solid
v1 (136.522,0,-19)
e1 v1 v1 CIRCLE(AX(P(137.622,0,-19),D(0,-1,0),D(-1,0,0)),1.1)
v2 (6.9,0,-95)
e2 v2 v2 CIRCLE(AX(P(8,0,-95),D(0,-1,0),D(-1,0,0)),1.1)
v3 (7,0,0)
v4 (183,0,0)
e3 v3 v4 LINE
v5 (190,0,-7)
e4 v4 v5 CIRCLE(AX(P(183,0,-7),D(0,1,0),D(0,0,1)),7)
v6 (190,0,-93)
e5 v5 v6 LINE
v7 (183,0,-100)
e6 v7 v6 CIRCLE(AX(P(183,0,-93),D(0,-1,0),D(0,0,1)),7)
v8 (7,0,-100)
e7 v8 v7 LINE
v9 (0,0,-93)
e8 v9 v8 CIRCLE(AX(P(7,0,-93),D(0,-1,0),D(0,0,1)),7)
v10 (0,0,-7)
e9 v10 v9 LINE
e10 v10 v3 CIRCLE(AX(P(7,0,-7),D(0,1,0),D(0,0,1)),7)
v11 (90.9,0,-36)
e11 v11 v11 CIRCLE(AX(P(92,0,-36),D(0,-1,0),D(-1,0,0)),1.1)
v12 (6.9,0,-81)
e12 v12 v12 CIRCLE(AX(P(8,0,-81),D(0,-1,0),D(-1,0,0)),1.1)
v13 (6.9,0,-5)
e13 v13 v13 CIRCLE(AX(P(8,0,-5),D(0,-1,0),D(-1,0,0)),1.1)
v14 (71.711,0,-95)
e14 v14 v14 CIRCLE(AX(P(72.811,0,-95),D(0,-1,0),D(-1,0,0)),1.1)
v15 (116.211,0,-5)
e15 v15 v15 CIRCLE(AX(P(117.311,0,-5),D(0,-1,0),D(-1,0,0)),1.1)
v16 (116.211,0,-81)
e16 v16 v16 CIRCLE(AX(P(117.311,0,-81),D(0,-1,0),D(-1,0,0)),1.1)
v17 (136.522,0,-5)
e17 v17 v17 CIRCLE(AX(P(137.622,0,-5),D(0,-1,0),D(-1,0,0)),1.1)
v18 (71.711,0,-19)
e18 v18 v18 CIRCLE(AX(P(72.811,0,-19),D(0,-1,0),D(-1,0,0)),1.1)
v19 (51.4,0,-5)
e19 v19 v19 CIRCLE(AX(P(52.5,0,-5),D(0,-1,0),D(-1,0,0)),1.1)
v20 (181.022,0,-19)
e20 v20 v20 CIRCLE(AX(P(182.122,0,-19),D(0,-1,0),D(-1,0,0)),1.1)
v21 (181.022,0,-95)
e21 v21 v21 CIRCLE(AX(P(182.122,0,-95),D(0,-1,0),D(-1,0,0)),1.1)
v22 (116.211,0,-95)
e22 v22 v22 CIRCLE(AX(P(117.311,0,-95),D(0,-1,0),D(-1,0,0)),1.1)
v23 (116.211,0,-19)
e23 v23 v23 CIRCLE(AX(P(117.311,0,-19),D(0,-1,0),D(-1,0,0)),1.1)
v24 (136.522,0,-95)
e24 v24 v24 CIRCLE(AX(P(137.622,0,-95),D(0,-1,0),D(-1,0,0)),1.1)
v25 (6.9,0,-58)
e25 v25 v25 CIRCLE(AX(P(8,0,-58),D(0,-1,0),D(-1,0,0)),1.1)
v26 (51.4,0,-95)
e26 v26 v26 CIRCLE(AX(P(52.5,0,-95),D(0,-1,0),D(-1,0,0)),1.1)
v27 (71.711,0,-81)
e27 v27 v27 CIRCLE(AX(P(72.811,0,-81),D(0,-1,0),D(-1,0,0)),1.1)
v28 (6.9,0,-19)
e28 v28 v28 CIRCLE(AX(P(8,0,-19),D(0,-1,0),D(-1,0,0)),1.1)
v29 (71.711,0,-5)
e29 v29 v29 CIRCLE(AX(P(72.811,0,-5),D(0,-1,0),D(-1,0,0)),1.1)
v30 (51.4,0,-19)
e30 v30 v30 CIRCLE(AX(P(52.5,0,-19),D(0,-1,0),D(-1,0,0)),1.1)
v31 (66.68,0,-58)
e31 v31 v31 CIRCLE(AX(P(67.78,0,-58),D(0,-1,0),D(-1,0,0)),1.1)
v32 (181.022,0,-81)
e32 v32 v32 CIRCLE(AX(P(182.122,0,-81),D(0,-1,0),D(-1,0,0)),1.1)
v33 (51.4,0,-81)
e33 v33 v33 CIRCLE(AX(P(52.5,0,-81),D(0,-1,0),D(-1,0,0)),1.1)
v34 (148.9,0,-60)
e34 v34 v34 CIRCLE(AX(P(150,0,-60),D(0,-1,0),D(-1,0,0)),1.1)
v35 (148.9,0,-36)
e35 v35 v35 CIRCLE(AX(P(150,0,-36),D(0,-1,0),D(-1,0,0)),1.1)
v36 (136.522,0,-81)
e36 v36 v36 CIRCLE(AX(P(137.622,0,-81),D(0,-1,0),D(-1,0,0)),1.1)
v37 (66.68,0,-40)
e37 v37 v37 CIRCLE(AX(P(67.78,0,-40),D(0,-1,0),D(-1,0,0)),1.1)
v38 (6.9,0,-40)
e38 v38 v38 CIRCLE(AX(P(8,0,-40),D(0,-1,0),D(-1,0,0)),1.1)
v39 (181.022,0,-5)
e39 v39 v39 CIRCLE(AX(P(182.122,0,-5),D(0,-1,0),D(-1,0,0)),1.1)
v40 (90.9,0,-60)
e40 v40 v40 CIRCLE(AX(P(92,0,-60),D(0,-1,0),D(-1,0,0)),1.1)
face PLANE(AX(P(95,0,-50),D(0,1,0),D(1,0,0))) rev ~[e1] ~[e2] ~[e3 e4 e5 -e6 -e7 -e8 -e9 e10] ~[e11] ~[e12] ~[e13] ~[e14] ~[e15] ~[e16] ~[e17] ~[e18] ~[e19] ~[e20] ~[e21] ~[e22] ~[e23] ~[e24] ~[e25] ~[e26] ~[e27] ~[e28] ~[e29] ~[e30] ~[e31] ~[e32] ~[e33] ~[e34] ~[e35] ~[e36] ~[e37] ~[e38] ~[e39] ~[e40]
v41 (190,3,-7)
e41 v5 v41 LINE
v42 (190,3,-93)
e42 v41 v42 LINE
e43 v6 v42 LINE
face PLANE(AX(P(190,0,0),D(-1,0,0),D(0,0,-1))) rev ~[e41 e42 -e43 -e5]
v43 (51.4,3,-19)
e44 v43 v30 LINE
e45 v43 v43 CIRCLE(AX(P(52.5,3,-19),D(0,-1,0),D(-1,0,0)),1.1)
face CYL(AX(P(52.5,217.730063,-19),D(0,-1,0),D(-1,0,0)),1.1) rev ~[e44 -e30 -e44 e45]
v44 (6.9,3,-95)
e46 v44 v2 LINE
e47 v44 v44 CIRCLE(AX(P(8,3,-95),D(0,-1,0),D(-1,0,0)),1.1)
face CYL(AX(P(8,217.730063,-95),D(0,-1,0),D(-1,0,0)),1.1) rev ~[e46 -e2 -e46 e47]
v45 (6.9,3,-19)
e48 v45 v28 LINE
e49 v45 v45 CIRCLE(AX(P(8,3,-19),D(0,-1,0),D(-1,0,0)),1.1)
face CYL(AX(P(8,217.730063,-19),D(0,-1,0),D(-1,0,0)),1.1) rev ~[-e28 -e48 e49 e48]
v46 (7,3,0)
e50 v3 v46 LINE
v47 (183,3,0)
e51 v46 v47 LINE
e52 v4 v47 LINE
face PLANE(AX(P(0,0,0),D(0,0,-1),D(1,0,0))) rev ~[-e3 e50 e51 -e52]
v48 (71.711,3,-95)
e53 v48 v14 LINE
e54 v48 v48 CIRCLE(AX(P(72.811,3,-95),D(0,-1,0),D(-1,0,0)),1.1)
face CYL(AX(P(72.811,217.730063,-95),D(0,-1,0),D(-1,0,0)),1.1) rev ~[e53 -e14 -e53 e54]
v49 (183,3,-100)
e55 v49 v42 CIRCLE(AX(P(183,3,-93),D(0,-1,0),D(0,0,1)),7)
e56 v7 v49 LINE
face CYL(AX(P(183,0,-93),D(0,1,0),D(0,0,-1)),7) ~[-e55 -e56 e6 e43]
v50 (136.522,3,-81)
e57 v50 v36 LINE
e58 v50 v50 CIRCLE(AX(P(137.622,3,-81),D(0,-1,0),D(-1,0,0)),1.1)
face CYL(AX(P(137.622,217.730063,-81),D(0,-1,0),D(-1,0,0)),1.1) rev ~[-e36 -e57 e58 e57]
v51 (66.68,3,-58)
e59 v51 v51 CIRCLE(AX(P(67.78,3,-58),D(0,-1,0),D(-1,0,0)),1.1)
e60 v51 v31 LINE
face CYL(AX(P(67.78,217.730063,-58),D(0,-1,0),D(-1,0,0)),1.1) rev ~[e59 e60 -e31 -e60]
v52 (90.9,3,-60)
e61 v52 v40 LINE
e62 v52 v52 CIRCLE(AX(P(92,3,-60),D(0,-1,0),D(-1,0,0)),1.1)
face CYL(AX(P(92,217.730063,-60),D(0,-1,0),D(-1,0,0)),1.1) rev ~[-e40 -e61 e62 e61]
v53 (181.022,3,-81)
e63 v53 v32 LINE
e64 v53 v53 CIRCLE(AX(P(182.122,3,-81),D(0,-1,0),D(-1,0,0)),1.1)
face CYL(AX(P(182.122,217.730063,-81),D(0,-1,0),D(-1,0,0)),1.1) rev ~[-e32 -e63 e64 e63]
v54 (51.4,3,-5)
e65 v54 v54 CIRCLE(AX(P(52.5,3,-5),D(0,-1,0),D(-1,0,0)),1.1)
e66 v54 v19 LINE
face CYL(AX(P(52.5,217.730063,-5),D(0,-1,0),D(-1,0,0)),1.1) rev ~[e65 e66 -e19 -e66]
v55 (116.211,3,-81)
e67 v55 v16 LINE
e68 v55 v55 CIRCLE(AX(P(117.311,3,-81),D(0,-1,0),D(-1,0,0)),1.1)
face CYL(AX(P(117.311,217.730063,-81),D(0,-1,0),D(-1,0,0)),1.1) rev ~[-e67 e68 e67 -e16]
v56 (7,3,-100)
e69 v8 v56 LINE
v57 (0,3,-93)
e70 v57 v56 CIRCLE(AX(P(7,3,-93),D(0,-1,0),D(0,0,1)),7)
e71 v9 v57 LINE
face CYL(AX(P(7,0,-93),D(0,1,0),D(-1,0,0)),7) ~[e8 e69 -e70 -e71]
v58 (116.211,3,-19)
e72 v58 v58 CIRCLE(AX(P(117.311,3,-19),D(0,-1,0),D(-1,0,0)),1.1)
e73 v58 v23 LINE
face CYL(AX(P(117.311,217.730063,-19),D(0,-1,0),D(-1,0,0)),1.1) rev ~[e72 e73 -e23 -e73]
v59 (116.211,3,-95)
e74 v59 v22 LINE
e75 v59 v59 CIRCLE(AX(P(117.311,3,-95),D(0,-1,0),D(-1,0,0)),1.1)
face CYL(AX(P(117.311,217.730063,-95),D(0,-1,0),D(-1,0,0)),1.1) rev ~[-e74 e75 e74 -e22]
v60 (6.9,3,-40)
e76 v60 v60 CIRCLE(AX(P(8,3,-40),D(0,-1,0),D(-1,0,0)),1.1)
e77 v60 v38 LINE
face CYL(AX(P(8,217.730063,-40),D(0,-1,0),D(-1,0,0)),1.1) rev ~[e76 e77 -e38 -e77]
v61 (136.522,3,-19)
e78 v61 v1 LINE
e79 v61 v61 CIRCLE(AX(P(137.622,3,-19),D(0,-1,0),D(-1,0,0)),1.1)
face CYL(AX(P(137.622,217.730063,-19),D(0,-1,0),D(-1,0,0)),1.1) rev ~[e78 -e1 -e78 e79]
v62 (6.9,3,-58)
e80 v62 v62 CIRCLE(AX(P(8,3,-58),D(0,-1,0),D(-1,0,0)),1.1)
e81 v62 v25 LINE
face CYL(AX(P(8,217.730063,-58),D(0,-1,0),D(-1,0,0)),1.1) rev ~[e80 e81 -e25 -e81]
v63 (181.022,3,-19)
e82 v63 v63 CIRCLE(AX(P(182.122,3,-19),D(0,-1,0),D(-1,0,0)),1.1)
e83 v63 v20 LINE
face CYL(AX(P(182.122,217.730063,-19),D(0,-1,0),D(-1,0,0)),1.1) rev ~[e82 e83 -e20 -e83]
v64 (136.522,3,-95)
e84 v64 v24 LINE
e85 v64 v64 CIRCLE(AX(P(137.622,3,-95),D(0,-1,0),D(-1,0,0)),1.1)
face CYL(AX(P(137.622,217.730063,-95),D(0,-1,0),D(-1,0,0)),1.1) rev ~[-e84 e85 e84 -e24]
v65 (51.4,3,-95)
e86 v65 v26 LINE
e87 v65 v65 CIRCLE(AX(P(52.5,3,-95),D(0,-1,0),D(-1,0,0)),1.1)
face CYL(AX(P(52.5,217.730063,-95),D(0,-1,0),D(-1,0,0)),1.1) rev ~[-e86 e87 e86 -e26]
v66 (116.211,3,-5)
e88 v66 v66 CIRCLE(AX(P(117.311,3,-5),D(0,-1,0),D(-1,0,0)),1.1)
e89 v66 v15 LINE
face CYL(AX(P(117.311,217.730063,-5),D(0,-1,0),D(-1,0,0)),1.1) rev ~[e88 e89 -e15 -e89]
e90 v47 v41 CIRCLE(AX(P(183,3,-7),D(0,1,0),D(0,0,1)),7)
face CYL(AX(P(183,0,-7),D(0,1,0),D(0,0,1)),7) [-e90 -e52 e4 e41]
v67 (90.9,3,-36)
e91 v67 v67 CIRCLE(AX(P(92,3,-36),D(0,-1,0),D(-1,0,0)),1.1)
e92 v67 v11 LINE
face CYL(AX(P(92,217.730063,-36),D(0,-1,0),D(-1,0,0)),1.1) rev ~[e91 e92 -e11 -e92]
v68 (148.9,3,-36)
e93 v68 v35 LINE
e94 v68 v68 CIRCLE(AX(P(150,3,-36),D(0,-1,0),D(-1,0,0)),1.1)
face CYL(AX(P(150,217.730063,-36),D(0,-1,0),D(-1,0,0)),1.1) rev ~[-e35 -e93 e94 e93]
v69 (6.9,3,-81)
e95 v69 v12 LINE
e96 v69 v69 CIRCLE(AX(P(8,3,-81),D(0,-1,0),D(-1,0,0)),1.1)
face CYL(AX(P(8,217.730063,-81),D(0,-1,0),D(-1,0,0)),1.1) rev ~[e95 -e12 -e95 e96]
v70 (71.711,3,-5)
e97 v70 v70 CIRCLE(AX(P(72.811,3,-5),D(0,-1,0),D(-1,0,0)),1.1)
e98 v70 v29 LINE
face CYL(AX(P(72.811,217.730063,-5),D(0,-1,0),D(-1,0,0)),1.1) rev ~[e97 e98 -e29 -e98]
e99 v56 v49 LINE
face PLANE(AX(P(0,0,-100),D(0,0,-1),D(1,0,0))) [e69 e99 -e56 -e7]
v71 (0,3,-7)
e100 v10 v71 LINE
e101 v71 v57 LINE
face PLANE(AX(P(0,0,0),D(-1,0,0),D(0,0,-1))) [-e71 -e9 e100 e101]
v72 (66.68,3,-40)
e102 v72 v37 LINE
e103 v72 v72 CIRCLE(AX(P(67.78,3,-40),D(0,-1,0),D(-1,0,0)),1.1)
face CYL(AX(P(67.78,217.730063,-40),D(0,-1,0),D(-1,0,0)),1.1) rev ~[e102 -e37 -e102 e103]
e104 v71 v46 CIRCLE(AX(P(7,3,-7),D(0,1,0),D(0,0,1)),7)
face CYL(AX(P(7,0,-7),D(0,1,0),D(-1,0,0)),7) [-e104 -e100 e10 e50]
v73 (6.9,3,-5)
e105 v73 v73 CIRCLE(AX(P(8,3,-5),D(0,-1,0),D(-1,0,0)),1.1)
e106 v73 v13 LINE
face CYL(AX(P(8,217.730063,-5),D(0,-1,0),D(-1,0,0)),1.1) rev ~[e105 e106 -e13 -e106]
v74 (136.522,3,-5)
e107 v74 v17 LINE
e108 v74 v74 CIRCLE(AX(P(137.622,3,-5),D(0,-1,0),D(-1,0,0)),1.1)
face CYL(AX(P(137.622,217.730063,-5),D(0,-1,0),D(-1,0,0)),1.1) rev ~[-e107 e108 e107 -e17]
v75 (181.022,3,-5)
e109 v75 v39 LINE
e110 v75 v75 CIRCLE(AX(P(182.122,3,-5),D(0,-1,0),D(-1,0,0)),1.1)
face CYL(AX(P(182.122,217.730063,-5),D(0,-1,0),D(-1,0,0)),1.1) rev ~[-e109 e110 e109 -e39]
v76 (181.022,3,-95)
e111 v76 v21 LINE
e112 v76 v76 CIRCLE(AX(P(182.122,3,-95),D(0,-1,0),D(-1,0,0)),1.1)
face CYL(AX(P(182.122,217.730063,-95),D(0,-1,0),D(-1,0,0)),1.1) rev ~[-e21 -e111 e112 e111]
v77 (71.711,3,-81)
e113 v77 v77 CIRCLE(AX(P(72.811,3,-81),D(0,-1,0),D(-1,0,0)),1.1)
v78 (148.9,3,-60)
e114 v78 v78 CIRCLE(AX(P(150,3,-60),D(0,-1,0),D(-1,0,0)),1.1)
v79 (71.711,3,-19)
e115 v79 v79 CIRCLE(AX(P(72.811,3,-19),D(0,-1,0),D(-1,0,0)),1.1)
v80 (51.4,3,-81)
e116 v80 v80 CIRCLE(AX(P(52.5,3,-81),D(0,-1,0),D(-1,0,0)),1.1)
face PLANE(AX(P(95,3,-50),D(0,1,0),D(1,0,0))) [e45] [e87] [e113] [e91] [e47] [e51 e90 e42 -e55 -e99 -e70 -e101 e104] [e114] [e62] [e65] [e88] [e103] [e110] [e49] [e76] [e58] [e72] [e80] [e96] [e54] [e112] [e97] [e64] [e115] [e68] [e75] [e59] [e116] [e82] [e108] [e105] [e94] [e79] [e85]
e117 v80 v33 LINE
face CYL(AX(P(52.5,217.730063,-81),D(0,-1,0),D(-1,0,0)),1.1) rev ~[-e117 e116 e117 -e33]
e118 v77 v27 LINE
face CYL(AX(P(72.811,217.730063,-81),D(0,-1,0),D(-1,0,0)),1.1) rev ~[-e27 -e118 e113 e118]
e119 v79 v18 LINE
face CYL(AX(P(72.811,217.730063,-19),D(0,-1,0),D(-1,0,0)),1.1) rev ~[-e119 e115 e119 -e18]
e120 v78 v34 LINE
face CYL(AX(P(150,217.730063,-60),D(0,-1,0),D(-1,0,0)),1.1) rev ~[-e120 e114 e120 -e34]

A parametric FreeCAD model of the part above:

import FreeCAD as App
import Part
import Sketcher


def edges_at(feature, points):
    """Names of the edges that pass closest to the given points."""
    edges = feature.Shape.Edges
    near = lambda p: min(range(len(edges)), key=lambda i: edges[i].distToShape(Part.Vertex(*p))[0])
    return sorted({f"Edge{near(p) + 1}" for p in points})

doc = App.newDocument("Part")
body = doc.addObject("PartDesign::Body", "Body")

# Sketch on XZ plane
sketch1 = body.newObject("Sketcher::SketchObject", "Sketch")
sketch1.AttachmentSupport = (doc.getObject("XZ_Plane"), [""])
sketch1.MapMode = "FlatFace"
sketch1.addGeometry([
    Part.LineSegment(App.Vector(0, -100, 0), App.Vector(0, 0, 0)),
    Part.LineSegment(App.Vector(0, 0, 0), App.Vector(190, 0, 0)),
    Part.LineSegment(App.Vector(190, 0, 0), App.Vector(190, -100, 0)),
    Part.LineSegment(App.Vector(190, -100, 0), App.Vector(0, -100, 0)),
], False)
sketch1.addConstraint([
    Sketcher.Constraint("Coincident", 0, 2, 1, 1),
    Sketcher.Constraint("Coincident", 1, 2, 2, 1),
    Sketcher.Constraint("Coincident", 2, 2, 3, 1),
    Sketcher.Constraint("Coincident", 3, 2, 0, 1),
    Sketcher.Constraint("Vertical", 0),
    Sketcher.Constraint("Horizontal", 1),
    Sketcher.Constraint("Vertical", 2),
    Sketcher.Constraint("Horizontal", 3),
    Sketcher.Constraint("Coincident", 0, 2, -1, 1),
    Sketcher.Constraint("DistanceX", 1, 1, 1, 2, 190.0),
    Sketcher.Constraint("DistanceY", 0, 1, 0, 2, 100.0),
])
pad1 = body.newObject("PartDesign::Pad", "Pad")
pad1.Profile = sketch1
pad1.Length = 3
pad1.Reversed = True

# Sketch on XZ plane
sketch2 = body.newObject("Sketcher::SketchObject", "Sketch001")
sketch2.AttachmentSupport = (doc.getObject("XZ_Plane"), [""])
sketch2.MapMode = "FlatFace"
sketch2.AttachmentOffset = App.Placement(App.Vector(0, 0, -3), App.Rotation())
sketch2.addGeometry([
    Part.Circle(App.Vector(8, -95, 0), App.Vector(0, 0, 1), 1.1),  # 0
    Part.Circle(App.Vector(52.5, -95, 0), App.Vector(0, 0, 1), 1.1),  # 1
    Part.Circle(App.Vector(52.5, -81, 0), App.Vector(0, 0, 1), 1.1),  # 2
    Part.Circle(App.Vector(8, -81, 0), App.Vector(0, 0, 1), 1.1),  # 3
    Part.Circle(App.Vector(52.5, -19, 0), App.Vector(0, 0, 1), 1.1),  # 4
    Part.Circle(App.Vector(52.5, -5, 0), App.Vector(0, 0, 1), 1.1),  # 5
    Part.Circle(App.Vector(8, -19, 0), App.Vector(0, 0, 1), 1.1),  # 6
    Part.Circle(App.Vector(8, -5, 0), App.Vector(0, 0, 1), 1.1),  # 7
    Part.Circle(App.Vector(72.8, -95, 0), App.Vector(0, 0, 1), 1.1),  # 8
    Part.Circle(App.Vector(117.3, -95, 0), App.Vector(0, 0, 1), 1.1),  # 9
    Part.Circle(App.Vector(117.3, -81, 0), App.Vector(0, 0, 1), 1.1),  # 10
    Part.Circle(App.Vector(72.8, -81, 0), App.Vector(0, 0, 1), 1.1),  # 11
    Part.Circle(App.Vector(137.6, -95, 0), App.Vector(0, 0, 1), 1.1),  # 12
    Part.Circle(App.Vector(182.1, -95, 0), App.Vector(0, 0, 1), 1.1),  # 13
    Part.Circle(App.Vector(182.1, -81, 0), App.Vector(0, 0, 1), 1.1),  # 14
    Part.Circle(App.Vector(137.6, -81, 0), App.Vector(0, 0, 1), 1.1),  # 15
    Part.Circle(App.Vector(72.8, -19, 0), App.Vector(0, 0, 1), 1.1),  # 16
    Part.Circle(App.Vector(117.3, -19, 0), App.Vector(0, 0, 1), 1.1),  # 17
    Part.Circle(App.Vector(137.6, -19, 0), App.Vector(0, 0, 1), 1.1),  # 18
    Part.Circle(App.Vector(182.1, -19, 0), App.Vector(0, 0, 1), 1.1),  # 19
    Part.Circle(App.Vector(182.1, -5, 0), App.Vector(0, 0, 1), 1.1),  # 20
    Part.Circle(App.Vector(137.6, -5, 0), App.Vector(0, 0, 1), 1.1),  # 21
    Part.Circle(App.Vector(117.3, -5, 0), App.Vector(0, 0, 1), 1.1),  # 22
    Part.Circle(App.Vector(72.8, -5, 0), App.Vector(0, 0, 1), 1.1),  # 23
    Part.Circle(App.Vector(8, -58, 0), App.Vector(0, 0, 1), 1.1),  # 24
    Part.Circle(App.Vector(8, -40, 0), App.Vector(0, 0, 1), 1.1),  # 25
    Part.Circle(App.Vector(67.8, -58, 0), App.Vector(0, 0, 1), 1.1),  # 26
    Part.Circle(App.Vector(67.8, -40, 0), App.Vector(0, 0, 1), 1.1),  # 27
    Part.Circle(App.Vector(92, -60, 0), App.Vector(0, 0, 1), 1.1),  # 28
    Part.Circle(App.Vector(92, -36, 0), App.Vector(0, 0, 1), 1.1),  # 29
    Part.Circle(App.Vector(150, -36, 0), App.Vector(0, 0, 1), 1.1),  # 30
    Part.Circle(App.Vector(150, -60, 0), App.Vector(0, 0, 1), 1.1),  # 31
], False)
sketch2.addConstraint([
    Sketcher.Constraint("Equal", 0, 1),
    Sketcher.Constraint("Equal", 1, 2),
    Sketcher.Constraint("Equal", 2, 3),
    Sketcher.Constraint("Equal", 3, 4),
    Sketcher.Constraint("Equal", 4, 5),
    Sketcher.Constraint("Equal", 5, 6),
    Sketcher.Constraint("Equal", 6, 7),
    Sketcher.Constraint("Equal", 7, 8),
    Sketcher.Constraint("Equal", 8, 9),
    Sketcher.Constraint("Equal", 9, 10),
    Sketcher.Constraint("Equal", 10, 11),
    Sketcher.Constraint("Equal", 11, 12),
    Sketcher.Constraint("Equal", 12, 13),
    Sketcher.Constraint("Equal", 13, 14),
    Sketcher.Constraint("Equal", 14, 15),
    Sketcher.Constraint("Equal", 15, 16),
    Sketcher.Constraint("Equal", 16, 17),
    Sketcher.Constraint("Equal", 17, 18),
    Sketcher.Constraint("Equal", 18, 19),
    Sketcher.Constraint("Equal", 19, 20),
    Sketcher.Constraint("Equal", 20, 21),
    Sketcher.Constraint("Equal", 21, 22),
    Sketcher.Constraint("Equal", 22, 23),
    Sketcher.Constraint("Equal", 23, 24),
    Sketcher.Constraint("Equal", 24, 25),
    Sketcher.Constraint("Equal", 25, 26),
    Sketcher.Constraint("Equal", 26, 27),
    Sketcher.Constraint("Equal", 27, 28),
    Sketcher.Constraint("Equal", 28, 29),
    Sketcher.Constraint("Equal", 29, 30),
    Sketcher.Constraint("Equal", 30, 31),
    Sketcher.Constraint("Horizontal", 0, 3, 1, 3),
    Sketcher.Constraint("Horizontal", 2, 3, 3, 3),
    Sketcher.Constraint("Horizontal", 4, 3, 6, 3),
    Sketcher.Constraint("Horizontal", 5, 3, 7, 3),
    Sketcher.Constraint("Horizontal", 1, 3, 8, 3),
    Sketcher.Constraint("Horizontal", 8, 3, 9, 3),
    Sketcher.Constraint("Horizontal", 3, 3, 10, 3),
    Sketcher.Constraint("Horizontal", 10, 3, 11, 3),
    Sketcher.Constraint("Horizontal", 9, 3, 12, 3),
    Sketcher.Constraint("Horizontal", 12, 3, 13, 3),
    Sketcher.Constraint("Horizontal", 11, 3, 14, 3),
    Sketcher.Constraint("Horizontal", 14, 3, 15, 3),
    Sketcher.Constraint("Horizontal", 6, 3, 16, 3),
    Sketcher.Constraint("Horizontal", 16, 3, 17, 3),
    Sketcher.Constraint("Horizontal", 17, 3, 18, 3),
    Sketcher.Constraint("Horizontal", 18, 3, 19, 3),
    Sketcher.Constraint("Horizontal", 7, 3, 20, 3),
    Sketcher.Constraint("Horizontal", 20, 3, 21, 3),
    Sketcher.Constraint("Horizontal", 21, 3, 22, 3),
    Sketcher.Constraint("Horizontal", 22, 3, 23, 3),
    Sketcher.Constraint("Horizontal", 24, 3, 26, 3),
    Sketcher.Constraint("Horizontal", 25, 3, 27, 3),
    Sketcher.Constraint("Horizontal", 29, 3, 30, 3),
    Sketcher.Constraint("Horizontal", 28, 3, 31, 3),
    Sketcher.Constraint("Vertical", 1, 3, 2, 3),
    Sketcher.Constraint("Vertical", 0, 3, 3, 3),
    Sketcher.Constraint("Vertical", 2, 3, 4, 3),
    Sketcher.Constraint("Vertical", 4, 3, 5, 3),
    Sketcher.Constraint("Vertical", 3, 3, 6, 3),
    Sketcher.Constraint("Vertical", 6, 3, 7, 3),
    Sketcher.Constraint("Vertical", 9, 3, 10, 3),
    Sketcher.Constraint("Vertical", 8, 3, 11, 3),
    Sketcher.Constraint("Vertical", 13, 3, 14, 3),
    Sketcher.Constraint("Vertical", 12, 3, 15, 3),
    Sketcher.Constraint("Vertical", 11, 3, 16, 3),
    Sketcher.Constraint("Vertical", 10, 3, 17, 3),
    Sketcher.Constraint("Vertical", 15, 3, 18, 3),
    Sketcher.Constraint("Vertical", 14, 3, 19, 3),
    Sketcher.Constraint("Vertical", 19, 3, 20, 3),
    Sketcher.Constraint("Vertical", 18, 3, 21, 3),
    Sketcher.Constraint("Vertical", 17, 3, 22, 3),
    Sketcher.Constraint("Vertical", 16, 3, 23, 3),
    Sketcher.Constraint("Vertical", 7, 3, 24, 3),
    Sketcher.Constraint("Vertical", 24, 3, 25, 3),
    Sketcher.Constraint("Vertical", 26, 3, 27, 3),
    Sketcher.Constraint("Vertical", 28, 3, 29, 3),
    Sketcher.Constraint("Vertical", 30, 3, 31, 3),
    Sketcher.Constraint("Diameter", 0, 2.2),
    Sketcher.Constraint("DistanceX", -1, 1, 0, 3, 8.0),
    Sketcher.Constraint("DistanceY", 0, 3, -1, 1, 95.0),
    Sketcher.Constraint("DistanceY", 2, 3, -1, 1, 81.0),
    Sketcher.Constraint("DistanceY", 4, 3, -1, 1, 19.0),
    Sketcher.Constraint("DistanceY", 5, 3, -1, 1, 5.0),
    Sketcher.Constraint("DistanceY", 24, 3, -1, 1, 58.0),
    Sketcher.Constraint("DistanceY", 25, 3, -1, 1, 40.0),
    Sketcher.Constraint("DistanceX", -1, 1, 28, 3, 92.0),
    Sketcher.Constraint("DistanceY", 28, 3, -1, 1, 60.0),
    Sketcher.Constraint("DistanceY", 29, 3, -1, 1, 36.0),
    Sketcher.Constraint("DistanceX", -1, 1, 30, 3, 150.0),
    Sketcher.Constraint("DistanceX", -1, 1, 1, 3, 52.5),
    Sketcher.Constraint("DistanceX", 8, 3, 9, 3, 44.5),
    Sketcher.Constraint("DistanceX", 12, 3, 13, 3, 44.5),
    Sketcher.Constraint("DistanceX", -1, 1, 26, 3, 67.78),
    Sketcher.Constraint("DistanceX", -1, 1, 8, 3, 72.811),
    Sketcher.Constraint("DistanceX", -1, 1, 12, 3, 137.622),
])
doc.recompute()
hole = body.newObject("PartDesign::Hole", "Hole")
hole.Profile = sketch2
hole.ThreadType = "None"
hole.Diameter = 2.2
hole.DepthType = "ThroughAll"
hole.Reversed = True
doc.recompute()

fillet = body.newObject("PartDesign::Fillet", "Fillet")
fillet.Base = (hole, edges_at(hole, [
    (0, 1.5, -100),
    (190, 1.5, -100),
    (190, 1.5, 0),
    (0, 1.5, 0),
]))
fillet.Radius = 7

doc.recompute()
